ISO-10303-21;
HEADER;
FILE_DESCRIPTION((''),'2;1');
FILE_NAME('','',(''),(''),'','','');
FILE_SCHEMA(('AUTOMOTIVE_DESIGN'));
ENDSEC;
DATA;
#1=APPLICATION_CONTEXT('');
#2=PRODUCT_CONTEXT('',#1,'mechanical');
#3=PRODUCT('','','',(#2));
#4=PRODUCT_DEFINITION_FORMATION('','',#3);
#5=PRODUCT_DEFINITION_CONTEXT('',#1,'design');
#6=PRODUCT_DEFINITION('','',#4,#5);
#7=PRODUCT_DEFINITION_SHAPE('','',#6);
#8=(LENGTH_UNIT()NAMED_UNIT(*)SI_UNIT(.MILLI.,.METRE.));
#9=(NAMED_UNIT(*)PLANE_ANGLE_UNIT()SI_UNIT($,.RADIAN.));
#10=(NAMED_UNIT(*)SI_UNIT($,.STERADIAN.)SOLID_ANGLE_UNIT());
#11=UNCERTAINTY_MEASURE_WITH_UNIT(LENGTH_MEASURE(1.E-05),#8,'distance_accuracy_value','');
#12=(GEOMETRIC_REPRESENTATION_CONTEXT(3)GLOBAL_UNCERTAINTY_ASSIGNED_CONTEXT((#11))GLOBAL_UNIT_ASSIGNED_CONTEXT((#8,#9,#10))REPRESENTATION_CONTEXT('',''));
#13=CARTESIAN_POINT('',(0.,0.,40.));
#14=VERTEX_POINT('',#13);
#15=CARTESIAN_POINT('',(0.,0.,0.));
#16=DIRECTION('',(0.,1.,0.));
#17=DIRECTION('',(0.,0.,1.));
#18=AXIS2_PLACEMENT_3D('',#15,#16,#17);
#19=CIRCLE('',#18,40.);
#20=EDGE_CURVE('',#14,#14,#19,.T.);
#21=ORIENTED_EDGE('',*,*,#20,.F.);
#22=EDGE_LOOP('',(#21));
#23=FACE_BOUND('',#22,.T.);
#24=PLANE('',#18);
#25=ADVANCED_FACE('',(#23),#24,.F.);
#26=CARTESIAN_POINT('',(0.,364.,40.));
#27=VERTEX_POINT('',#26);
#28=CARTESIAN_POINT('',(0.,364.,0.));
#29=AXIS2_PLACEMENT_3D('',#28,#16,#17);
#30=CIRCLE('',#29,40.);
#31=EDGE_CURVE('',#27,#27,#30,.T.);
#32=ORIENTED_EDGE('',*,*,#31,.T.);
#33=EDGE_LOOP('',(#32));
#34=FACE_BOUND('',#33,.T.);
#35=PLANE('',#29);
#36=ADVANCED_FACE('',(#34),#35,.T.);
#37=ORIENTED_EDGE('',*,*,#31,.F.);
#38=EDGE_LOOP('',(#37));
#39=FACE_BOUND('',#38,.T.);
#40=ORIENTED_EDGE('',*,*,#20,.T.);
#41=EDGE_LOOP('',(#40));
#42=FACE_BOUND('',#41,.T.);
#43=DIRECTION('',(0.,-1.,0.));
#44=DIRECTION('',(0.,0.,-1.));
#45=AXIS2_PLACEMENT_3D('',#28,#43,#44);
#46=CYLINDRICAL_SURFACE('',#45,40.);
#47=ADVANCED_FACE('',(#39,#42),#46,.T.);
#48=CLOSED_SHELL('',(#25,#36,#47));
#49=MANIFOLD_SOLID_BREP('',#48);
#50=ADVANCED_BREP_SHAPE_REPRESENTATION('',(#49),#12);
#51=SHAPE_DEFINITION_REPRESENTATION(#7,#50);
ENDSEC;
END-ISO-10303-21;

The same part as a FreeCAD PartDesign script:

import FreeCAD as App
import Part
import Sketcher
from FreeCAD import Vector
Q = App.Units.Quantity

doc = App.newDocument("Part")
body = doc.addObject("PartDesign::Body", "Body")

# Sketch on XZ plane
sketch1 = body.newObject("Sketcher::SketchObject", "Sketch")
sketch1.AttachmentSupport = (doc.getObject("XZ_Plane"), [""])
sketch1.MapMode = "FlatFace"
sketch1.addGeometry(Part.Circle(Vector(0, 0, 0), Vector(0, 0, 1), 40), False)
sketch1.addConstraint(Sketcher.Constraint("Coincident", 0, 3, -1, 1))
sketch1.addConstraint(Sketcher.Constraint("Diameter", 0, Q("80 mm")))
pad1 = body.newObject("PartDesign::Pad", "Pad")
pad1.Profile = sketch1
pad1.Length = 364
pad1.Reversed = True

doc.recompute()
